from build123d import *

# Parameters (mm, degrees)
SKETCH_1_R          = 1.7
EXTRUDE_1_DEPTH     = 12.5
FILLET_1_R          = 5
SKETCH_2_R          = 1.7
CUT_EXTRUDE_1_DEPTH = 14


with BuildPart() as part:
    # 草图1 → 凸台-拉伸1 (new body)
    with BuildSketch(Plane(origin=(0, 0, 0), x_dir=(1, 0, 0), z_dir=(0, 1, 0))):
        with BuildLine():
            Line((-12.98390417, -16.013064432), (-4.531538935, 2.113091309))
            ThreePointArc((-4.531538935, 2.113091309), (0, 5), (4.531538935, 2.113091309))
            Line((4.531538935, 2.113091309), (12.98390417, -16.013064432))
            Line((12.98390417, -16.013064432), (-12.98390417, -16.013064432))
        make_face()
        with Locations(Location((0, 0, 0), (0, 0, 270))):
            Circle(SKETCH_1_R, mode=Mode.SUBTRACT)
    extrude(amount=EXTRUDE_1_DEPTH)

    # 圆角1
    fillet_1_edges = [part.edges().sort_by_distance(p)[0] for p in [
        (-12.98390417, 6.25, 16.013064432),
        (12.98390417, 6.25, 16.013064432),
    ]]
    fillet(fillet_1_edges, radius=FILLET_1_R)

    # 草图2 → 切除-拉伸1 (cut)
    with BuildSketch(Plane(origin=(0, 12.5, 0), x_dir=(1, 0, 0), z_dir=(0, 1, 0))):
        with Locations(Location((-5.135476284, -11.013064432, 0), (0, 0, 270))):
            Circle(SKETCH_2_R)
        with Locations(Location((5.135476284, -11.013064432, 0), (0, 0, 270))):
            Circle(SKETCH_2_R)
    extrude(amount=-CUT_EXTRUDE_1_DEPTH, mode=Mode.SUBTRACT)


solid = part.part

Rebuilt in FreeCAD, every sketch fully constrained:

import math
import FreeCAD as App
import Part
import Sketcher

V = App.Vector
Q = App.Units.Quantity


def edges_at(feature, points):
    """Names of the edges that pass closest to the given points."""
    edges = feature.Shape.Edges
    near = lambda p: min(range(len(edges)), key=lambda i: edges[i].distToShape(Part.Vertex(*p))[0])
    return sorted({f"Edge{near(p) + 1}" for p in points})

doc = App.newDocument("Part")
params = doc.addObject("Spreadsheet::Sheet", "Params")
for row, (alias, value) in enumerate([
    ("sketch1_radius", "5 mm"),
    ("sketch1_diameter", "3.4 mm"),
    ("sketch1_length", "20 mm"),
    ("pad1_length", "12.5 mm"),
    ("fillet_radius", "5 mm"),
    ("sketch2_diameter", "3.4 mm"),
    ("pocket1_length", "14 mm"),
], start=1):
    params.set(f"A{row}", alias)
    params.set(f"B{row}", "=" + value)
    params.setAlias(f"B{row}", alias)

body = doc.addObject("PartDesign::Body", "Body")

# Sketch on XZ plane
sketch1 = body.newObject("Sketcher::SketchObject", "Sketch")
sketch1.AttachmentSupport = (doc.getObject("XZ_Plane"), [""])
sketch1.MapMode = "FlatFace"
sketch1.addGeometry([
    Part.LineSegment(V(-4.5, -2.1, 0), V(-13, 16, 0)),  # 0
    Part.LineSegment(V(-13, 16, 0), V(13, 16, 0)),  # 1
    Part.LineSegment(V(13, 16, 0), V(4.5, -2.1, 0)),  # 2
    Part.ArcOfCircle(Part.Circle(V(0, 0, 0), V(0, 0, 1), 5), math.radians(-155), math.radians(-25)),  # 3
    Part.Circle(V(0, 0, 0), V(0, 0, 1), 1.7),  # 4
], False)
sketch1.addConstraint([
    Sketcher.Constraint("Coincident", 0, 2, 1, 1),
    Sketcher.Constraint("Coincident", 1, 2, 2, 1),
    Sketcher.Constraint("Tangent", 2, 2, 3, 2),
    Sketcher.Constraint("Tangent", 3, 1, 0, 1),
    Sketcher.Constraint("Horizontal", 1),
    Sketcher.Constraint("Coincident", 3, 3, -1, 1),
    Sketcher.Constraint("Coincident", 4, 3, -1, 1),
    Sketcher.Constraint("Horizontal", 2, 2, 3, 1),
    Sketcher.Constraint("Radius", 3, Q("5 mm")),
    Sketcher.Constraint("Diameter", 4, Q("3.4 mm")),
    Sketcher.Constraint("Angle", 0, Q("115 deg")),
    Sketcher.Constraint("Distance", 0, Q("20 mm")),
])
sketch1.setExpression("Constraints[8]", "Params.sketch1_radius")
sketch1.setExpression("Constraints[9]", "Params.sketch1_diameter")
sketch1.setExpression("Constraints[11]", "Params.sketch1_length")
pad1 = body.newObject("PartDesign::Pad", "Pad")
pad1.Profile = sketch1
pad1.setExpression("Length", "Params.pad1_length")
pad1.Reversed = True
doc.recompute()

fillet = body.newObject("PartDesign::Fillet", "Fillet")
fillet.Base = (pad1, edges_at(pad1, [(-12.984, 6.25, 16.013), (12.984, 6.25, 16.013)]))
fillet.setExpression("Radius", "Params.fillet_radius")

# Sketch on XZ plane
sketch2 = body.newObject("Sketcher::SketchObject", "Sketch001")
sketch2.AttachmentSupport = (doc.getObject("XZ_Plane"), [""])
sketch2.MapMode = "FlatFace"
sketch2.AttachmentOffset = App.Placement(V(0, 0, -12.5), App.Rotation())
sketch2.addGeometry([
    Part.Circle(V(-5.1, 11, 0), V(0, 0, 1), 1.7),
    Part.Circle(V(5.1, 11, 0), V(0, 0, 1), 1.7),
], False)
sketch2.addConstraint([
    Sketcher.Constraint("Equal", 0, 1),
    Sketcher.Constraint("Symmetric", 0, 3, 1, 3, -2),
    Sketcher.Constraint("Diameter", 0, Q("3.4 mm")),
    Sketcher.Constraint("DistanceX", 0, 3, -1, 1, Q("5.135476 mm")),
    Sketcher.Constraint("DistanceY", -1, 1, 0, 3, Q("11.013064 mm")),
])
sketch2.setExpression("Constraints[2]", "Params.sketch2_diameter")
pocket1 = body.newObject("PartDesign::Pocket", "Pocket")
pocket1.Profile = sketch2
pocket1.setExpression("Length", "Params.pocket1_length")
pocket1.Reversed = True

doc.recompute()
